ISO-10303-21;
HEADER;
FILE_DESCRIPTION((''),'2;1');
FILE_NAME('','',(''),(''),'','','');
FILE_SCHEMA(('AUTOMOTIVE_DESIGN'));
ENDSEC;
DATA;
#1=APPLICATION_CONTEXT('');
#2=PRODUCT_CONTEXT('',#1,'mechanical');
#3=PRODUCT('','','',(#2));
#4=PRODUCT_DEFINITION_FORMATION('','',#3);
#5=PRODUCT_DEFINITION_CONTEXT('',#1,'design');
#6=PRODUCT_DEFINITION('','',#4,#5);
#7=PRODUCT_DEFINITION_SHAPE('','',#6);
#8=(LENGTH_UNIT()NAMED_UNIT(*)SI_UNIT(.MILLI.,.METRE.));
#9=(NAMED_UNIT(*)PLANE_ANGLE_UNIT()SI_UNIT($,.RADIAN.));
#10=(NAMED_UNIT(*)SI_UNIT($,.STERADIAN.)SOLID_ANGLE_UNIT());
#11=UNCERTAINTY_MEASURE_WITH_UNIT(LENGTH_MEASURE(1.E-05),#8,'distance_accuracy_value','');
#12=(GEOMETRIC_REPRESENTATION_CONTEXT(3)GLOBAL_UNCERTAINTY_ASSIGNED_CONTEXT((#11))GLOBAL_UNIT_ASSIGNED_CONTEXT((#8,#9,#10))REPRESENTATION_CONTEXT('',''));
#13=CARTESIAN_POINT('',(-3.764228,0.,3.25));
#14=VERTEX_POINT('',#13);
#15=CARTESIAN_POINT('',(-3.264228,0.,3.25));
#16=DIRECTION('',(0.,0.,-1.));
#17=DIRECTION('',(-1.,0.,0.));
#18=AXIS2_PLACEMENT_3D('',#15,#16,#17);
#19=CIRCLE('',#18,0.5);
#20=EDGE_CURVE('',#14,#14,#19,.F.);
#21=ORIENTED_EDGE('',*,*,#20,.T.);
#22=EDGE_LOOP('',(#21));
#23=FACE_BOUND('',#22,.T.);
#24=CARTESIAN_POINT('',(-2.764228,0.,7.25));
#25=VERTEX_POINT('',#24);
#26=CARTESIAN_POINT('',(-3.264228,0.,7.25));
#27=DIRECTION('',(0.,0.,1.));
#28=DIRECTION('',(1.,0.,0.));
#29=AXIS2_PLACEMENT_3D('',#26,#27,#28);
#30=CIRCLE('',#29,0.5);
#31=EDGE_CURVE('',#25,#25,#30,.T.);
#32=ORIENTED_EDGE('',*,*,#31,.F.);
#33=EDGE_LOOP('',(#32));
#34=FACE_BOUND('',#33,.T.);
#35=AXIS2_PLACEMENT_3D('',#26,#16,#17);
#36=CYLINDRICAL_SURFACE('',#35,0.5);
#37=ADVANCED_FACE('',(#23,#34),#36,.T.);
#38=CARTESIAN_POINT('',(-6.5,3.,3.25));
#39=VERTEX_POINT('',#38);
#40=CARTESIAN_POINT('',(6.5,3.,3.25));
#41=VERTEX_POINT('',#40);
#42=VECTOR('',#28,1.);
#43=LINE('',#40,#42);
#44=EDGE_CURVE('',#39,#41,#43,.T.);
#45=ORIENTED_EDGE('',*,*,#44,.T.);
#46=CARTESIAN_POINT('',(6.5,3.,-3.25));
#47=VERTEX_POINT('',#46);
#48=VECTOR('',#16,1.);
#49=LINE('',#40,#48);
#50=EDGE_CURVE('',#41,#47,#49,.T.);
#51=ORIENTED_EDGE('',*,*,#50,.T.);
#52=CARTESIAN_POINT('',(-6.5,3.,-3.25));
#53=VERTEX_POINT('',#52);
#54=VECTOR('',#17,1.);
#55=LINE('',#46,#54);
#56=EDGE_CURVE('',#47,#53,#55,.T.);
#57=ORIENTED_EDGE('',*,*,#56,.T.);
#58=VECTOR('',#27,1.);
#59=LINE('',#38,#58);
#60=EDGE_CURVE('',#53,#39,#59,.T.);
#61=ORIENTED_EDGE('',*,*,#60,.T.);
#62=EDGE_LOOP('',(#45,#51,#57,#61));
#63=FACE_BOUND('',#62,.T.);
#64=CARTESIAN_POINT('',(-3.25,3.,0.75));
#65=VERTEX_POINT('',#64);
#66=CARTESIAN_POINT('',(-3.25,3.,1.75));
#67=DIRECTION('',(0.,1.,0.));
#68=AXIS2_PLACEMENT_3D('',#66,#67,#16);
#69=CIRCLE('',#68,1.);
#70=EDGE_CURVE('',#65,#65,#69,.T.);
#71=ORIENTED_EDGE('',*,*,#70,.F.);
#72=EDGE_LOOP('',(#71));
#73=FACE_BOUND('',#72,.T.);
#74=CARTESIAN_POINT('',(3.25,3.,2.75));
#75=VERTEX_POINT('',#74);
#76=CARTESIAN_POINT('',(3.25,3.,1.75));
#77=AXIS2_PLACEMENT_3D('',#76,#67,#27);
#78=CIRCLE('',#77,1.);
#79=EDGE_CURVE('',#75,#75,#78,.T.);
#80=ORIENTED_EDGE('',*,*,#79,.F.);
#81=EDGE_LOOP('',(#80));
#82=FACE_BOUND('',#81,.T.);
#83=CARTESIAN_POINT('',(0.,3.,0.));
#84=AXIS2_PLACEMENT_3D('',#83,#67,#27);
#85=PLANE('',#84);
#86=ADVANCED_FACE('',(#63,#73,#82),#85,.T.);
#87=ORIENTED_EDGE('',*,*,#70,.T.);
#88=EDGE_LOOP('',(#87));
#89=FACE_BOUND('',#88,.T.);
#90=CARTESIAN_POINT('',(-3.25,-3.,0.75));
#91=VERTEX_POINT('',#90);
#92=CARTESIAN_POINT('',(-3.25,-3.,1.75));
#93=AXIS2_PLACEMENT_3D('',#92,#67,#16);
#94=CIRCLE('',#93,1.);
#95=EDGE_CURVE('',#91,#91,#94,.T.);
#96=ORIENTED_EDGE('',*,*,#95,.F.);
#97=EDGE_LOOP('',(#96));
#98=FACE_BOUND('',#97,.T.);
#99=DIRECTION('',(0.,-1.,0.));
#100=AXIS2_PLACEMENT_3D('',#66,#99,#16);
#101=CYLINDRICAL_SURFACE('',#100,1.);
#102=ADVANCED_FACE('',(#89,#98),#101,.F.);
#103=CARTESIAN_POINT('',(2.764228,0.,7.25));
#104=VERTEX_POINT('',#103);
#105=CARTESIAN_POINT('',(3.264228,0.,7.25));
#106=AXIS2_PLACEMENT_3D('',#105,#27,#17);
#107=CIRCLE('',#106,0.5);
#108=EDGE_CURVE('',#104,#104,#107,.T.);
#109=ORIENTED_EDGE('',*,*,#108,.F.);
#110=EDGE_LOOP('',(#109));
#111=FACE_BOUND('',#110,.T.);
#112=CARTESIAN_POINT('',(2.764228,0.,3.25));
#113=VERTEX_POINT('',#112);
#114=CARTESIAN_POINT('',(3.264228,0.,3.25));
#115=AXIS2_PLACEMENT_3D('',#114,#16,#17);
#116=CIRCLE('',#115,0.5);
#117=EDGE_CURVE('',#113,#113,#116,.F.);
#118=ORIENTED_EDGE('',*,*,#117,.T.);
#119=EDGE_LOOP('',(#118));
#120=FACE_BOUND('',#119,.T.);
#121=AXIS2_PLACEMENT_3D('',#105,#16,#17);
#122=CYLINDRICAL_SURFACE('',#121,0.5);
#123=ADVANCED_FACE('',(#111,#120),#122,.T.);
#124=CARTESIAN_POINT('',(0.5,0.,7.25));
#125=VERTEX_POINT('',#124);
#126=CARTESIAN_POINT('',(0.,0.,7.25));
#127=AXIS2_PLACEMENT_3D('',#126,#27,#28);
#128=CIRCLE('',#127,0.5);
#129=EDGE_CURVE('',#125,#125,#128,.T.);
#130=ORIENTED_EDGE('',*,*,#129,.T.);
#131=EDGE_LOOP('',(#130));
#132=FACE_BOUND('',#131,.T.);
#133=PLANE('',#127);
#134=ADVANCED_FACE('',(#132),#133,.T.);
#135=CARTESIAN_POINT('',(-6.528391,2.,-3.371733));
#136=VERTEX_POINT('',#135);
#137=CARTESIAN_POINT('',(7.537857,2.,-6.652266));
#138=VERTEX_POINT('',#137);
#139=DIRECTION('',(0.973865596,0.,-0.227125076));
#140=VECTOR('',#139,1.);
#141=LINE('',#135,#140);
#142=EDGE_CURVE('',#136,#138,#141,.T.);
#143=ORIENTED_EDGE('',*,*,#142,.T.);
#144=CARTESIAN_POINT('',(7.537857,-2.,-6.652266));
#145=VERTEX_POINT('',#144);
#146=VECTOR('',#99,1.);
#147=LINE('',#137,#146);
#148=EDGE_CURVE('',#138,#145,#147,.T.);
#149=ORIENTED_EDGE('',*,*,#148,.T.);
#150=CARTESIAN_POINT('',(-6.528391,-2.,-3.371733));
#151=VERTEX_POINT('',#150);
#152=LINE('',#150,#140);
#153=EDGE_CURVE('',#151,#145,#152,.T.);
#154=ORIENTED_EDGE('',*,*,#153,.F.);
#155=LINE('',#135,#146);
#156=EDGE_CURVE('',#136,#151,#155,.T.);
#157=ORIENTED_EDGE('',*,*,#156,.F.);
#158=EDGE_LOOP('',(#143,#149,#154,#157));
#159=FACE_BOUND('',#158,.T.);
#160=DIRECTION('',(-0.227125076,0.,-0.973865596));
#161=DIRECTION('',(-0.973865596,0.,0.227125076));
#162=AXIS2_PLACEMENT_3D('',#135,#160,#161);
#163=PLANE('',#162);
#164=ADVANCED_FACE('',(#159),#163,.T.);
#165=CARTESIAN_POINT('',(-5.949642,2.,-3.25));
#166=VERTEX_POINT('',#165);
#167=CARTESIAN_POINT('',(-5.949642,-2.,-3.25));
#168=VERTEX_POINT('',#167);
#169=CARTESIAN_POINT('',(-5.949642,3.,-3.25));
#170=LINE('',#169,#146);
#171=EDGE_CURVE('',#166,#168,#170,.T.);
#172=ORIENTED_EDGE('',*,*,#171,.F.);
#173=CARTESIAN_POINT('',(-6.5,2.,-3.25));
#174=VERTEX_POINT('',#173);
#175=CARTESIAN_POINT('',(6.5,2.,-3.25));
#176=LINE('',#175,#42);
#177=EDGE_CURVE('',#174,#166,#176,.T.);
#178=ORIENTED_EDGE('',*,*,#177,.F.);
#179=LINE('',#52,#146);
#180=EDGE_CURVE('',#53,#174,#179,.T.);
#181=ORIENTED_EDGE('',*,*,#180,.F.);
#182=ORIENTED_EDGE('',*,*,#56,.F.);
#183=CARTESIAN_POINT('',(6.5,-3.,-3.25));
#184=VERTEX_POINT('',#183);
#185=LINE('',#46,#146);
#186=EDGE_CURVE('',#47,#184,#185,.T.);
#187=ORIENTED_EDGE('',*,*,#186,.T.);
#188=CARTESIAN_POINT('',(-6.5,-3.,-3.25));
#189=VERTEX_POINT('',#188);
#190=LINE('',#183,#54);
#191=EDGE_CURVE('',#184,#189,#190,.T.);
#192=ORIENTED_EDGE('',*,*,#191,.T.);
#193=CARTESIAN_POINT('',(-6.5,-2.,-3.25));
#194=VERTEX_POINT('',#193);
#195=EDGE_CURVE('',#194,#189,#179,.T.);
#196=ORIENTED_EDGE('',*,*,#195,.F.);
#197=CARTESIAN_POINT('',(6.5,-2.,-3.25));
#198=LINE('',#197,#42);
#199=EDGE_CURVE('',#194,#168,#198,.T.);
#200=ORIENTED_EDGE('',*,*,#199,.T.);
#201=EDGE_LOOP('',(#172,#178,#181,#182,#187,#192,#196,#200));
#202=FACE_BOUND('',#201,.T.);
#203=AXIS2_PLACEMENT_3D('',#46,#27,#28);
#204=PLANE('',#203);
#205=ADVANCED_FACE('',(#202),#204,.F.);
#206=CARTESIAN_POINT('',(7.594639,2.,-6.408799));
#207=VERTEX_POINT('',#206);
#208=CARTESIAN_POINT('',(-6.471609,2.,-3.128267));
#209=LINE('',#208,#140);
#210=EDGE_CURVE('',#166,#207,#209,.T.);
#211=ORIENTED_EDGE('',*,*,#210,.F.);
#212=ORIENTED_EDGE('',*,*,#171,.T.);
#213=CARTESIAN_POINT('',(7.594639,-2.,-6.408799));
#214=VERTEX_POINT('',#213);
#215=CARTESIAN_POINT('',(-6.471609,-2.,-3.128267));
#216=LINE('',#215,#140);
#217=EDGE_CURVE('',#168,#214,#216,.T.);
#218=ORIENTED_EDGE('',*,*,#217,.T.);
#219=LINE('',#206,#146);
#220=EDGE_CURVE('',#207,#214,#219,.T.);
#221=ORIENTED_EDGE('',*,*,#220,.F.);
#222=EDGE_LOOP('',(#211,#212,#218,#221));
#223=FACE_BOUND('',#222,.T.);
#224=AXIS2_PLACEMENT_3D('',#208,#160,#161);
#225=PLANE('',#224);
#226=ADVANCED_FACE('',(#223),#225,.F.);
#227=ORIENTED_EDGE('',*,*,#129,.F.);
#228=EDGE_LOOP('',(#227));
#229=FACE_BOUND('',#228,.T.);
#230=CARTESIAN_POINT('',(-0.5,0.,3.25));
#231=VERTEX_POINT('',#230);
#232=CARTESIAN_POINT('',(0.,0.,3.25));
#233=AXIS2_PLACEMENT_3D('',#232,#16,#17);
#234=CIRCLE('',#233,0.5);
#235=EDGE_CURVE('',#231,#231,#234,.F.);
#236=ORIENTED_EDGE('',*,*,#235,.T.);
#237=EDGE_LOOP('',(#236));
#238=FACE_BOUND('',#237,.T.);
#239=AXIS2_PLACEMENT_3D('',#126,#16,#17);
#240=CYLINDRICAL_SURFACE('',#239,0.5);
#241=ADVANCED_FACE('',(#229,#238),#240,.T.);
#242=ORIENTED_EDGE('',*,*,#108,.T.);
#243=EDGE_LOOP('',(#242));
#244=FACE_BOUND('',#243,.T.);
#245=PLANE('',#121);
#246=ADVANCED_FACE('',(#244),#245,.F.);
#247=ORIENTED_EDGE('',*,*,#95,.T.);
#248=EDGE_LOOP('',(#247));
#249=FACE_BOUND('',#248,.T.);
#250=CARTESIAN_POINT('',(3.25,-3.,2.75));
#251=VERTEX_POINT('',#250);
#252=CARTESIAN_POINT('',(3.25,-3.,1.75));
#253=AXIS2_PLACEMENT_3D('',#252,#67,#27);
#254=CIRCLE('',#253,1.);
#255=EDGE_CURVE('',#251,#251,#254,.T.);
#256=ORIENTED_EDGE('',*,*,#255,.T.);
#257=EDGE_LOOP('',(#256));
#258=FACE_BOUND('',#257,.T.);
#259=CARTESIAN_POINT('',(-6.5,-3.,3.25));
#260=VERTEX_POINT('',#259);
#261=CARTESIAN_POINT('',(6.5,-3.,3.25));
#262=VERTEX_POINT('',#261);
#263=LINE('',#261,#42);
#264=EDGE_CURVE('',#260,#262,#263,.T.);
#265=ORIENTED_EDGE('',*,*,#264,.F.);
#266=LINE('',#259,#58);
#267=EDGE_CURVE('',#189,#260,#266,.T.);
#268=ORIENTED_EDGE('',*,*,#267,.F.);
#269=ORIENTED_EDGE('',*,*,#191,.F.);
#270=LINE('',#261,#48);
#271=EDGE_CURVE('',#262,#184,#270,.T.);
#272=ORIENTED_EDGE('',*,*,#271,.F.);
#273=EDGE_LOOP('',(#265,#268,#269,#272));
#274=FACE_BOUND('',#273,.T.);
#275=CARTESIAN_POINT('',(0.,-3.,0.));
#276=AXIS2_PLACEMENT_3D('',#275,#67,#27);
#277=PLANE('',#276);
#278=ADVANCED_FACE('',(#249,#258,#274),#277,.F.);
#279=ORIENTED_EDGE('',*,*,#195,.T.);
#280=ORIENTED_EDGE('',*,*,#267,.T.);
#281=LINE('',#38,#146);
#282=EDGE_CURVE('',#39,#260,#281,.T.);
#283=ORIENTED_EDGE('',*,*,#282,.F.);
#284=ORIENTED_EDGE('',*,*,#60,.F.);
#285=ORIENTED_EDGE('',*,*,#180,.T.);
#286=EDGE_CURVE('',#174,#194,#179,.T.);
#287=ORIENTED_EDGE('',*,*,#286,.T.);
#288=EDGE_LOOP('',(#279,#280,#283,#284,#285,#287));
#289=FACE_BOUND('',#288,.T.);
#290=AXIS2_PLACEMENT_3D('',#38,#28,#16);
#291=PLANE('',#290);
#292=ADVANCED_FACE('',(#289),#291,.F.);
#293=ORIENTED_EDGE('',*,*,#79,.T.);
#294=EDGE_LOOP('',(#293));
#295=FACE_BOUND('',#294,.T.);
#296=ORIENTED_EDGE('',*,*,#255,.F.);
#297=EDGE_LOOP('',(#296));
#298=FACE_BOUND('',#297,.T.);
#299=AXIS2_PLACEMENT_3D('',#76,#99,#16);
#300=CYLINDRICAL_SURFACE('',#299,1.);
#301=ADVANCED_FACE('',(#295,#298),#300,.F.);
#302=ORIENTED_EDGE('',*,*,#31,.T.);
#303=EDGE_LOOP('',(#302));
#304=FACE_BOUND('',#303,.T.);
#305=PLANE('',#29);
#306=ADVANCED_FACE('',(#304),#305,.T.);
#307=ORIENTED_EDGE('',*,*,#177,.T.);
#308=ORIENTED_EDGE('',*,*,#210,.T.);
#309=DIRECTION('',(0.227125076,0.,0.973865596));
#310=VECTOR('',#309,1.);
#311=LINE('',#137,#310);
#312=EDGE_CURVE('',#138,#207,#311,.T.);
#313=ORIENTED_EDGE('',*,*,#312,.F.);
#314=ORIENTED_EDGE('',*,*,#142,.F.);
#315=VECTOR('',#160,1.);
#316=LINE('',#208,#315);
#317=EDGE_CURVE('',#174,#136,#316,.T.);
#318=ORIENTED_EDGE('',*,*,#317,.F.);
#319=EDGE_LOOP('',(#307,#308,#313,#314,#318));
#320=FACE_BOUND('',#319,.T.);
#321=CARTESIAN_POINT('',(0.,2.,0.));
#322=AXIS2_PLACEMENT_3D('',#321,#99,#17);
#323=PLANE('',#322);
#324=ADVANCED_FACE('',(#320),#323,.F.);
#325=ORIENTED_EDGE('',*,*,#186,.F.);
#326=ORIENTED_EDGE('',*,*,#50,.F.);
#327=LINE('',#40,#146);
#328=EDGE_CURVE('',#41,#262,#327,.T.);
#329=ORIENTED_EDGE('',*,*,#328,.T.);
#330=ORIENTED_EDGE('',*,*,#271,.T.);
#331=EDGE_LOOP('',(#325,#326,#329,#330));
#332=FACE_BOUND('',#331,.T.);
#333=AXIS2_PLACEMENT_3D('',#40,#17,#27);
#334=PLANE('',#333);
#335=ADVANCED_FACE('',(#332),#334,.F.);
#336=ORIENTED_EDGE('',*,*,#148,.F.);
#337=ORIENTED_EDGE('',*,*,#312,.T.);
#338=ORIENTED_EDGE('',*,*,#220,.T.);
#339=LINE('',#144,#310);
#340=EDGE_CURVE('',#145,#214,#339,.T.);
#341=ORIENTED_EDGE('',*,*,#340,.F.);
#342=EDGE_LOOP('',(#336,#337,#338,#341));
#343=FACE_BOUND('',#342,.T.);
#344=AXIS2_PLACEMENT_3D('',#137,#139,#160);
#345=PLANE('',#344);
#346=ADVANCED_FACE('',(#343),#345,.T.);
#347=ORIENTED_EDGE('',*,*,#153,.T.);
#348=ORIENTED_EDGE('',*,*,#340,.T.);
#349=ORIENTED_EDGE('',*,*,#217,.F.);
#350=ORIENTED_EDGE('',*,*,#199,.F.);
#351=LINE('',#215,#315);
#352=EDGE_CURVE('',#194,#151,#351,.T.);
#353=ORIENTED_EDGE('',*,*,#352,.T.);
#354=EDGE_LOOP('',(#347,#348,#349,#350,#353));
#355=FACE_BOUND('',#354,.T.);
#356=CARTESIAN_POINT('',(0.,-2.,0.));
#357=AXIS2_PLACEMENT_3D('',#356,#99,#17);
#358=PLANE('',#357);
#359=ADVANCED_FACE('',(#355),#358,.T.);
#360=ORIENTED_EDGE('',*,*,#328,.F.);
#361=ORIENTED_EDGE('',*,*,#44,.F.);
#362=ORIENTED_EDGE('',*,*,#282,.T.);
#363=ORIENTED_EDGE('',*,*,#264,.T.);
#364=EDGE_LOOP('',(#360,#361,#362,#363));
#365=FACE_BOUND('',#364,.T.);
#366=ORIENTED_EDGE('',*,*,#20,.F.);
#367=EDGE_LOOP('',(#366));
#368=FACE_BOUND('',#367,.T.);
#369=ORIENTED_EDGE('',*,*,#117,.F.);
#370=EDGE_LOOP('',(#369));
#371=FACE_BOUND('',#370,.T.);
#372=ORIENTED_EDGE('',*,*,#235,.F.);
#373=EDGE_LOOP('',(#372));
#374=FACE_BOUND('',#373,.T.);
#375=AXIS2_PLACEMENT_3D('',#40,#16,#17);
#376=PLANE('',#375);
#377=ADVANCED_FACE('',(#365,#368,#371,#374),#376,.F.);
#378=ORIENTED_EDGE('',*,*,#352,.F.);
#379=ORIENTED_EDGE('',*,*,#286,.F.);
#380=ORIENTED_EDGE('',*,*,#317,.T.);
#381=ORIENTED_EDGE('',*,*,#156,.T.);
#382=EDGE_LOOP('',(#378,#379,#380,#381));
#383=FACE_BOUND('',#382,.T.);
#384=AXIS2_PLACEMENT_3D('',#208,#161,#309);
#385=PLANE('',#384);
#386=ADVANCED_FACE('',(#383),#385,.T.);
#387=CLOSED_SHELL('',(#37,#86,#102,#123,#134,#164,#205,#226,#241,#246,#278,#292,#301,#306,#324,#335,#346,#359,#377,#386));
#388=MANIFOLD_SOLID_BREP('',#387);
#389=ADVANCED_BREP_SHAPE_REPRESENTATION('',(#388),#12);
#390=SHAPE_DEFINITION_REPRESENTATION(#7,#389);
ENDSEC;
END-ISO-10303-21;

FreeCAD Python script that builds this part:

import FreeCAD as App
import Part
import Sketcher

doc = App.newDocument("Part")
params = doc.addObject("Spreadsheet::Sheet", "Params")
for row, (alias, value) in enumerate([
    ("sketch1_diameter", "2 mm"),
    ("sketch1_width", "13 mm"),
    ("sketch1_height", "6.5 mm"),
    ("pad1_length", "6 mm"),
    ("sketch2_diameter", "1 mm"),
    ("pad2_length", "4 mm"),
    ("sketch3_length", "0.25 mm"),
    ("pad3_length", "4 mm"),
], start=1):
    params.set(f"A{row}", alias)
    params.set(f"B{row}", "=" + value)
    params.setAlias(f"B{row}", alias)

body = doc.addObject("PartDesign::Body", "Body")

# Sketch on XZ plane
sketch1 = body.newObject("Sketcher::SketchObject", "Sketch")
sketch1.AttachmentSupport = (doc.getObject("XZ_Plane"), [""])
sketch1.MapMode = "FlatFace"
sketch1.addGeometry(Part.LineSegment(App.Vector(-6.5, -3.2, 0), App.Vector(-6.5, 3.2, 0)), False)
sketch1.addGeometry(Part.LineSegment(App.Vector(-6.5, 3.2, 0), App.Vector(6.5, 3.2, 0)), False)
sketch1.addGeometry(Part.LineSegment(App.Vector(6.5, 3.2, 0), App.Vector(6.5, -3.2, 0)), False)
sketch1.addGeometry(Part.LineSegment(App.Vector(6.5, -3.2, 0), App.Vector(-6.5, -3.2, 0)), False)
sketch1.addGeometry(Part.Circle(App.Vector(-3.2, 1.8, 0), App.Vector(0, 0, 1), 1), False)
sketch1.addGeometry(Part.Circle(App.Vector(3.2, 1.8, 0), App.Vector(0, 0, 1), 1), False)
sketch1.addConstraint(Sketcher.Constraint("Coincident", 0, 2, 1, 1))
sketch1.addConstraint(Sketcher.Constraint("Coincident", 1, 2, 2, 1))
sketch1.addConstraint(Sketcher.Constraint("Coincident", 2, 2, 3, 1))
sketch1.addConstraint(Sketcher.Constraint("Coincident", 3, 2, 0, 1))
sketch1.addConstraint(Sketcher.Constraint("Vertical", 0))
sketch1.addConstraint(Sketcher.Constraint("Horizontal", 1))
sketch1.addConstraint(Sketcher.Constraint("Vertical", 2))
sketch1.addConstraint(Sketcher.Constraint("Horizontal", 3))
sketch1.addConstraint(Sketcher.Constraint("Equal", 4, 5))
sketch1.addConstraint(Sketcher.Constraint("Symmetric", 0, 2, 2, 2, -1, 1))
sketch1.addConstraint(Sketcher.Constraint("Symmetric", 4, 3, 5, 3, -2))
sketch1.addConstraint(Sketcher.Constraint("Diameter", 4, 2.0))
sketch1.addConstraint(Sketcher.Constraint("DistanceX", 1, 1, 1, 2, 13.0))
sketch1.addConstraint(Sketcher.Constraint("DistanceY", 0, 1, 0, 2, 6.5))
sketch1.addConstraint(Sketcher.Constraint("DistanceY", 2, 2, 5, 3, 5.0))
sketch1.addConstraint(Sketcher.Constraint("DistanceX", 4, 3, 5, 3, 6.5))
sketch1.setExpression("Constraints[11]", "Params.sketch1_diameter")
sketch1.setExpression("Constraints[12]", "Params.sketch1_width")
sketch1.setExpression("Constraints[13]", "Params.sketch1_height")
pad1 = body.newObject("PartDesign::Pad", "Pad")
pad1.Profile = sketch1
pad1.setExpression("Length", "Params.pad1_length")
pad1.Midplane = True

# Sketch on XY plane
sketch2 = body.newObject("Sketcher::SketchObject", "Sketch001")
sketch2.AttachmentSupport = (doc.getObject("XY_Plane"), [""])
sketch2.MapMode = "FlatFace"
sketch2.AttachmentOffset = App.Placement(App.Vector(0, 0, 3.25), App.Rotation())
sketch2.addGeometry(Part.Circle(App.Vector(-3.3, 0, 0), App.Vector(0, 0, 1), 0.5), False)
sketch2.addGeometry(Part.Circle(App.Vector(0, 0, 0), App.Vector(0, 0, 1), 0.5), False)
sketch2.addGeometry(Part.Circle(App.Vector(3.3, 0, 0), App.Vector(0, 0, 1), 0.5), False)
sketch2.addConstraint(Sketcher.Constraint("Coincident", 1, 3, -1, 1))
sketch2.addConstraint(Sketcher.Constraint("Equal", 0, 1))
sketch2.addConstraint(Sketcher.Constraint("Equal", 1, 2))
sketch2.addConstraint(Sketcher.Constraint("Symmetric", 0, 3, 2, 3, -1, 1))
sketch2.addConstraint(Sketcher.Constraint("PointOnObject", 0, 3, -1))
sketch2.addConstraint(Sketcher.Constraint("Diameter", 0, 1.0))
sketch2.addConstraint(Sketcher.Constraint("DistanceX", 0, 3, -1, 1, 3.264228))
sketch2.setExpression("Constraints[5]", "Params.sketch2_diameter")
pad2 = body.newObject("PartDesign::Pad", "Pad001")
pad2.Profile = sketch2
pad2.setExpression("Length", "Params.pad2_length")

# Sketch on XZ plane
sketch3 = body.newObject("Sketcher::SketchObject", "Sketch002")
sketch3.AttachmentSupport = (doc.getObject("XZ_Plane"), [""])
sketch3.MapMode = "FlatFace"
sketch3.addGeometry(Part.LineSegment(App.Vector(-6.47, -3.13, 0), App.Vector(7.59, -6.41, 0)), False)
sketch3.addGeometry(Part.LineSegment(App.Vector(7.59, -6.41, 0), App.Vector(7.54, -6.65, 0)), False)
sketch3.addGeometry(Part.LineSegment(App.Vector(7.54, -6.65, 0), App.Vector(-6.53, -3.37, 0)), False)
sketch3.addGeometry(Part.LineSegment(App.Vector(-6.53, -3.37, 0), App.Vector(-6.47, -3.13, 0)), False)
sketch3.addConstraint(Sketcher.Constraint("Coincident", 0, 2, 1, 1))
sketch3.addConstraint(Sketcher.Constraint("Coincident", 1, 2, 2, 1))
sketch3.addConstraint(Sketcher.Constraint("Coincident", 2, 2, 3, 1))
sketch3.addConstraint(Sketcher.Constraint("Coincident", 3, 2, 0, 1))
sketch3.addConstraint(Sketcher.Constraint("Perpendicular", 0, 1))
sketch3.addConstraint(Sketcher.Constraint("Perpendicular", 1, 2))
sketch3.addConstraint(Sketcher.Constraint("Perpendicular", 2, 3))
sketch3.addConstraint(Sketcher.Constraint("Distance", 1, 0.25))
sketch3.addConstraint(Sketcher.Constraint("DistanceY", 1, 2, 3, 2, 3.523999))
sketch3.addConstraint(Sketcher.Constraint("DistanceY", 0, 2, -1, 1, 6.408799))
sketch3.addConstraint(Sketcher.Constraint("DistanceX", -1, 1, 0, 2, 7.594639))
sketch3.addConstraint(Sketcher.Constraint("DistanceX", 2, 2, -1, 1, 6.528391))
sketch3.setExpression("Constraints[7]", "Params.sketch3_length")
pad3 = body.newObject("PartDesign::Pad", "Pad002")
pad3.Profile = sketch3
pad3.setExpression("Length", "Params.pad3_length")
pad3.Midplane = True

doc.recompute()
